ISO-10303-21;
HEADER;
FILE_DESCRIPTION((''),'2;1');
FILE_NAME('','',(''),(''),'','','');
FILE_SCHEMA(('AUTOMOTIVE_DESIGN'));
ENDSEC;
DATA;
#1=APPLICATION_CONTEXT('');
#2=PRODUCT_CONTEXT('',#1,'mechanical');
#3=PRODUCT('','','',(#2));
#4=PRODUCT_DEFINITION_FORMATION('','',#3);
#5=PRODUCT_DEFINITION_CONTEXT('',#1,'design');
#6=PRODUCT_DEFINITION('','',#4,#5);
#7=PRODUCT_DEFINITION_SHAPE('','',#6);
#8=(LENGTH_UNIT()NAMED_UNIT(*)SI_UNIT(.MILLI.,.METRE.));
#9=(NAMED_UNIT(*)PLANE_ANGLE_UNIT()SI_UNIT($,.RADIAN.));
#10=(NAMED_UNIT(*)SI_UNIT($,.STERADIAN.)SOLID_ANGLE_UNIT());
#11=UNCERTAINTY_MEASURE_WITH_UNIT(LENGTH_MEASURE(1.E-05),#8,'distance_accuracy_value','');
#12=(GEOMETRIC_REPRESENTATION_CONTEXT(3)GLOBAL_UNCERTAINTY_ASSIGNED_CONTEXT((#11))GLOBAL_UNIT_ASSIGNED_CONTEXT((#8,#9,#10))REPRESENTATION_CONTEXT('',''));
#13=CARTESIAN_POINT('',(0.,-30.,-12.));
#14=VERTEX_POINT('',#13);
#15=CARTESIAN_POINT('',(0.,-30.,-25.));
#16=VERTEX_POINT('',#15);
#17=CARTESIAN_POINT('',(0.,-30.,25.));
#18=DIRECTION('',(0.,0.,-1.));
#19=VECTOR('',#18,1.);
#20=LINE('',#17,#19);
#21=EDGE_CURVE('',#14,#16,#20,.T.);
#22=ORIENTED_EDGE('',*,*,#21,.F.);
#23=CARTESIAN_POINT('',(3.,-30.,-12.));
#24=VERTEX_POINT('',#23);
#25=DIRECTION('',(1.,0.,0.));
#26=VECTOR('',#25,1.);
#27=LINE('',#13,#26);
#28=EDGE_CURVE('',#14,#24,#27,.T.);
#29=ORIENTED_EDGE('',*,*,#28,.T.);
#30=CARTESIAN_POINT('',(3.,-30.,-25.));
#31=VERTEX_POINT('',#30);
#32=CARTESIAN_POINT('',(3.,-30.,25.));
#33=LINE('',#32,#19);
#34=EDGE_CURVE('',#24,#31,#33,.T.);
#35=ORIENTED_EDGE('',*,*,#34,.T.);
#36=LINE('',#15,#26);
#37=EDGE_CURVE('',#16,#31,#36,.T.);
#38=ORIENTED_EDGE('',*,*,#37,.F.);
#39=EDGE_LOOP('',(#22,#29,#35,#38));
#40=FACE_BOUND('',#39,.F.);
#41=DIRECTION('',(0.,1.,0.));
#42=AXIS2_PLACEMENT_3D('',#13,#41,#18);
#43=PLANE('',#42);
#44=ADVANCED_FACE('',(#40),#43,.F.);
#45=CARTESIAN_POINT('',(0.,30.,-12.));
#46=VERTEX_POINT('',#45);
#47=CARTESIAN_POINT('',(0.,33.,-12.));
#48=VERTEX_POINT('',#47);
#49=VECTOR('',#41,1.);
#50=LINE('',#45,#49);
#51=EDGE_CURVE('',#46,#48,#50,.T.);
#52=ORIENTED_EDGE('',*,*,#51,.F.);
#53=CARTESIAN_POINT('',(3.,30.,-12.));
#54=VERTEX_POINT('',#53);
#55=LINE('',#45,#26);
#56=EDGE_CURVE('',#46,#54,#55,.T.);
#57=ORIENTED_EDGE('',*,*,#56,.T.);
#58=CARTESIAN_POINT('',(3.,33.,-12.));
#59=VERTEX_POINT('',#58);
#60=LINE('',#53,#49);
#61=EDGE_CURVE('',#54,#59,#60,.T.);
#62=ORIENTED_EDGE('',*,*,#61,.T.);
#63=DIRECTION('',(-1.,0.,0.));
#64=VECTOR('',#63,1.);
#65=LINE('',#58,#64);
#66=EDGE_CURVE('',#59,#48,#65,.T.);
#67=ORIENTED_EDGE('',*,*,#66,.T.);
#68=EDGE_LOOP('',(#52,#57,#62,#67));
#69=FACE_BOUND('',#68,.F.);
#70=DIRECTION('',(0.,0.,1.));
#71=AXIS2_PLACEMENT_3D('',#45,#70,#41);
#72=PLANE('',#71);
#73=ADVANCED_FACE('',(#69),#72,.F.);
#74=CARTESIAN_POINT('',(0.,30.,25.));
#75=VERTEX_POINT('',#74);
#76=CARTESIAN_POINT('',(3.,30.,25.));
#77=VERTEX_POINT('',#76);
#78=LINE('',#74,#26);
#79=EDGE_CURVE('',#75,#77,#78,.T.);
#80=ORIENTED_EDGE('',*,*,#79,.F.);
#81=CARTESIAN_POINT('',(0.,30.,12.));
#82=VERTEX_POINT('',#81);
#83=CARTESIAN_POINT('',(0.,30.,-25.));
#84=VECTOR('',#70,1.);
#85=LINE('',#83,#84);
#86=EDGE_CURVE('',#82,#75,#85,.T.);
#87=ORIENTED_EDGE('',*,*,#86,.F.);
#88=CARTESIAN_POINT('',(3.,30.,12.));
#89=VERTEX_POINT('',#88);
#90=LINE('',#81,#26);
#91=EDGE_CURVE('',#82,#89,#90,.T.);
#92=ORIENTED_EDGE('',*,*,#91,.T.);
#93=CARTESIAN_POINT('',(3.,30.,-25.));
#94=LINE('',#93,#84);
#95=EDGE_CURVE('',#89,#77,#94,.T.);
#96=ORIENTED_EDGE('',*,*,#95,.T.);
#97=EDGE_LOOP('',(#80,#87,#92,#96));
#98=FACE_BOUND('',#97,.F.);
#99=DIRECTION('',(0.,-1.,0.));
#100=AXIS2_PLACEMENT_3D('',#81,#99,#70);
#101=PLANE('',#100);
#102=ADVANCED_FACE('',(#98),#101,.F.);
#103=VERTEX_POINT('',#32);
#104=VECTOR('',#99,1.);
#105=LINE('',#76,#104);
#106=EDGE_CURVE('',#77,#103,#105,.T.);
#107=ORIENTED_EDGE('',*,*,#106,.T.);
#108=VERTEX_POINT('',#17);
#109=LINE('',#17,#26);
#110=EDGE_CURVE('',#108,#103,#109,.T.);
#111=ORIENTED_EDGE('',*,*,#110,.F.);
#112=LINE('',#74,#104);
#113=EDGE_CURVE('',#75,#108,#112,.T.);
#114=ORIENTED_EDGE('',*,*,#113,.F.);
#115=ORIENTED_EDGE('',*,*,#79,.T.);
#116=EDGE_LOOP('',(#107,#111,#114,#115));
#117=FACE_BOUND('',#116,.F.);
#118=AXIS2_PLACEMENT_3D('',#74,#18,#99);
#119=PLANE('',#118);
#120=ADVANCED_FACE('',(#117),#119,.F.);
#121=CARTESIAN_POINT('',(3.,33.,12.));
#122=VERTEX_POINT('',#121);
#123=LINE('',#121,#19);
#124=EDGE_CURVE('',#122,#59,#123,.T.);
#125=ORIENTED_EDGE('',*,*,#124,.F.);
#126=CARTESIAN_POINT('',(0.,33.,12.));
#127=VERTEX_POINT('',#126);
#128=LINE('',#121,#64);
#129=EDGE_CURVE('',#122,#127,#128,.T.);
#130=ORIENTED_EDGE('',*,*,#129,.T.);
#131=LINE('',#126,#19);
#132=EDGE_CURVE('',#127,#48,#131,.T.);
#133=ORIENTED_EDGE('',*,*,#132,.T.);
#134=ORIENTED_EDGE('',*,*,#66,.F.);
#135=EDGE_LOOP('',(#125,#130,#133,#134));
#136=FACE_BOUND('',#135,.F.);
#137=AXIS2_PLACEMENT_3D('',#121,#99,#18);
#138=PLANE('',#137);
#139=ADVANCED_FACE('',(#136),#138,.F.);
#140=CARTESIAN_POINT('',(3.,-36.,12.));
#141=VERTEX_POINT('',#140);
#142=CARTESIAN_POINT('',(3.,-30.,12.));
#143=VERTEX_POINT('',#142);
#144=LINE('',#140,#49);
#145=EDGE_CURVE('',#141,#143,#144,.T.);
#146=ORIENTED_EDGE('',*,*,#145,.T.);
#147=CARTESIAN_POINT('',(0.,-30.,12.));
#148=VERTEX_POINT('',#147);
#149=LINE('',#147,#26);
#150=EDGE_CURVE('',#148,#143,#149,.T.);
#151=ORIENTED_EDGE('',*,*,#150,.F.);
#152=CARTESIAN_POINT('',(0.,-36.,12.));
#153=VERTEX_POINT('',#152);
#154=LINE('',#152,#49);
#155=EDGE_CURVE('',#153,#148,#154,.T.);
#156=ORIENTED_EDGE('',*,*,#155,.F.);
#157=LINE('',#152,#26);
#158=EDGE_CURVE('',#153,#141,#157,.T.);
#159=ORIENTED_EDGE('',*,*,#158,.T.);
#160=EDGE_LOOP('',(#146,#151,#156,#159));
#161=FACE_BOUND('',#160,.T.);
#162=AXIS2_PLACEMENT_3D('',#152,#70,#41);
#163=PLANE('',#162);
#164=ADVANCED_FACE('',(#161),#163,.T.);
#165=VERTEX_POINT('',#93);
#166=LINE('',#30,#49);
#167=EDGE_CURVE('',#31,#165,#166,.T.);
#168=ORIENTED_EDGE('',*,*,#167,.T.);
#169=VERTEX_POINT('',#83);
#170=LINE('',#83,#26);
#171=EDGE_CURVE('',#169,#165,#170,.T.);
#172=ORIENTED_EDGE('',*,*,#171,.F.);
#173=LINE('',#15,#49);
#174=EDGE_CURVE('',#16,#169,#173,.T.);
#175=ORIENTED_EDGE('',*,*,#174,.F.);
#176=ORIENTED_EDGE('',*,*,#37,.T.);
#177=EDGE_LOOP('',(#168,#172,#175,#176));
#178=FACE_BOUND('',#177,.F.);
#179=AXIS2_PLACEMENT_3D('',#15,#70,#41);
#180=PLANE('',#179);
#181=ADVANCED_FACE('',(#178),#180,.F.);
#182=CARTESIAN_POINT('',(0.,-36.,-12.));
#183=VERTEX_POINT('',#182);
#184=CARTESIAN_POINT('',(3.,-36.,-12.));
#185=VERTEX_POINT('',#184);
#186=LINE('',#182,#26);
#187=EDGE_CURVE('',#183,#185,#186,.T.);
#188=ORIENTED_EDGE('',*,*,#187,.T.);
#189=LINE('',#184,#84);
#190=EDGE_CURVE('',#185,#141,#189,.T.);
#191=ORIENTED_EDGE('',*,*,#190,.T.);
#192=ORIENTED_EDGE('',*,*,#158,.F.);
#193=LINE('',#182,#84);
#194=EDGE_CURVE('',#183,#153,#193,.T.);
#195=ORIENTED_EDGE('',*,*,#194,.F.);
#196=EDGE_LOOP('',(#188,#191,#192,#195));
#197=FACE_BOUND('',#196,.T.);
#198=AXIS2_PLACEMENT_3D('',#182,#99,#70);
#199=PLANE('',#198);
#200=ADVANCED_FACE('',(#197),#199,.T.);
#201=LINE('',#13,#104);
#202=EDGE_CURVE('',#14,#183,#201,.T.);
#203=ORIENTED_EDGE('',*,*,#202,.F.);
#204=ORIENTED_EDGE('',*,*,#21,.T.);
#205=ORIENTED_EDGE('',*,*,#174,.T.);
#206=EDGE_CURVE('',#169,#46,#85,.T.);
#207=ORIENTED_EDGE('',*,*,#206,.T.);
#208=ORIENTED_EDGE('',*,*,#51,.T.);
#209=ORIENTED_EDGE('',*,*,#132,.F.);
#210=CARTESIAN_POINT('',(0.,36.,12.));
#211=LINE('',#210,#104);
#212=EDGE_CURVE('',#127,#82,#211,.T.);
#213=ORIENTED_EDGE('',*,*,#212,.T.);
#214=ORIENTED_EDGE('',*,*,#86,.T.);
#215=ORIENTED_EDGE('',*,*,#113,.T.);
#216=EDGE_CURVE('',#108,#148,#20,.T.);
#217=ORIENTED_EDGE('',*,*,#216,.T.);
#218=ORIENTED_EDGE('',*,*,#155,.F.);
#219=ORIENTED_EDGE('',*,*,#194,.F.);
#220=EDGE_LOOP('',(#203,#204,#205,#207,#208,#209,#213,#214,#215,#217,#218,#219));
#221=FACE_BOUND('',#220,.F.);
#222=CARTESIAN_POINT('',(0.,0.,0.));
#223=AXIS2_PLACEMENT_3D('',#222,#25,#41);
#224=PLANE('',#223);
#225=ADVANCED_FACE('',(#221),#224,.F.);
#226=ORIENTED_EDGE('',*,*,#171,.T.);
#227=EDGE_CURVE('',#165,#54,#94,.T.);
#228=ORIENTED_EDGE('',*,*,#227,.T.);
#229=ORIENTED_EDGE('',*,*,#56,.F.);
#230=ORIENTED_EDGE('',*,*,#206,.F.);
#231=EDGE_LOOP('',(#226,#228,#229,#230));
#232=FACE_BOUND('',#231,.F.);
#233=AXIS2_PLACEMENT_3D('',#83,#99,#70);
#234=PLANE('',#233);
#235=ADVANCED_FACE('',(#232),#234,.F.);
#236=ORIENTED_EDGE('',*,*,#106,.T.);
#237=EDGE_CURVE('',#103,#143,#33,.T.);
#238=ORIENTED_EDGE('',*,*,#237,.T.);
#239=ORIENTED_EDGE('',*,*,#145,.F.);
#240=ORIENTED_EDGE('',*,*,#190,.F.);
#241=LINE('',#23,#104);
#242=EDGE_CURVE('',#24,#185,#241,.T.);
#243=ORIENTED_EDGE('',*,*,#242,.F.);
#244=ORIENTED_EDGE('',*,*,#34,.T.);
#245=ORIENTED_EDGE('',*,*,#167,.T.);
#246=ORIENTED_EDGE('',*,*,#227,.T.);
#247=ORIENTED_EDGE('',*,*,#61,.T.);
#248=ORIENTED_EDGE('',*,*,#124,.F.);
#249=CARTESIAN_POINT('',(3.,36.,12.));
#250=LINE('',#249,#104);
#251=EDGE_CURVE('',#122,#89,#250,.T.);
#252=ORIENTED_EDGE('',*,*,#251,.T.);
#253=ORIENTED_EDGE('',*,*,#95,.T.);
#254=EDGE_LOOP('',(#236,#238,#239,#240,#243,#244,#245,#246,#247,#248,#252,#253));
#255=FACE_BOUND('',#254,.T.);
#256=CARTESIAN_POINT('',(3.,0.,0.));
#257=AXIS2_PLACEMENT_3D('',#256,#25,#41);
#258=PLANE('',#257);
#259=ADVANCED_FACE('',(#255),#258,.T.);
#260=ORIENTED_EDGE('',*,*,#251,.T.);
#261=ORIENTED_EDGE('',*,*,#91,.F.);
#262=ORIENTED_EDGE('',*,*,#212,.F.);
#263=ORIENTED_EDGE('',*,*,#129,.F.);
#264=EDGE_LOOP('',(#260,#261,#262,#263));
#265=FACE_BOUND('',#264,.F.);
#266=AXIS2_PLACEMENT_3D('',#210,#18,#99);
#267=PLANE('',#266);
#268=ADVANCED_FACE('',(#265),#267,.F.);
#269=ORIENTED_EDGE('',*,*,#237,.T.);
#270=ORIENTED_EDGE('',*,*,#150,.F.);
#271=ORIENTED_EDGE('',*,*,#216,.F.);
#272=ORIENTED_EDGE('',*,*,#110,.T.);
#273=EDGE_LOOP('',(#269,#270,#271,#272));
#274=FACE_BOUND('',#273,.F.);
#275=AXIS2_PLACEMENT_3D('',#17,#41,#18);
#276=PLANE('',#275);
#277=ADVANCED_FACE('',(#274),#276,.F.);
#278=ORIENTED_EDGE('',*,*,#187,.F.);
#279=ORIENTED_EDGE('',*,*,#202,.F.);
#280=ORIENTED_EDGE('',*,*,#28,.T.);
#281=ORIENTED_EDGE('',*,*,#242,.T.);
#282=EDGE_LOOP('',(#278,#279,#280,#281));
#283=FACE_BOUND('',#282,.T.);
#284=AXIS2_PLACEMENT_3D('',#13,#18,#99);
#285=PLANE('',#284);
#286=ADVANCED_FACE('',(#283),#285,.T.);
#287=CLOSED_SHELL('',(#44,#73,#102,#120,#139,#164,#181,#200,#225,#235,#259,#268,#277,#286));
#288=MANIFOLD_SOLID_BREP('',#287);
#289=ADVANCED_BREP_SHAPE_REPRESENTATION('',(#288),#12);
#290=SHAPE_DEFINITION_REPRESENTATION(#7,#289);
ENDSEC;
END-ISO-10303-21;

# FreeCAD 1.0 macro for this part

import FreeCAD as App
import Part
import Sketcher

V = App.Vector
Q = App.Units.Quantity


def add_polygon(sketch, points):
    """Adds a closed chain of lines whose ends are joined by coincident constraints."""
    first, n = sketch.GeometryCount, len(points)
    for a, b in zip(points, points[1:] + points[:1]):
        sketch.addGeometry(Part.LineSegment(App.Vector(*a, 0), App.Vector(*b, 0)), False)
    for i in range(n):
        sketch.addConstraint(Sketcher.Constraint("Coincident", first + i, 2, first + (i + 1) % n, 1))

doc = App.newDocument("Part")
body = doc.addObject("PartDesign::Body", "Body")

sketch1 = doc.addObject("Sketcher::SketchObject", "Sketch")
body.addObject(sketch1)
sketch1.AttachmentSupport = (doc.YZ_Plane, [""])
sketch1.MapMode = "FlatFace"
add_polygon(sketch1, [(30, 12), (30, 25), (-30, 25), (-30, 12), (-36, 12), (-36, -12), (-30, -12), (-30, -25), (30, -25), (30, -12), (36, -12), (36, 12)])
sketch1.addConstraint([
    Sketcher.Constraint("Vertical", 0),
    Sketcher.Constraint("Horizontal", 1),
    Sketcher.Constraint("Vertical", 2),
    Sketcher.Constraint("Horizontal", 3),
    Sketcher.Constraint("Vertical", 4),
    Sketcher.Constraint("Horizontal", 5),
    Sketcher.Constraint("Vertical", 6),
    Sketcher.Constraint("Horizontal", 7),
    Sketcher.Constraint("Vertical", 8),
    Sketcher.Constraint("Horizontal", 9),
    Sketcher.Constraint("Vertical", 10),
    Sketcher.Constraint("Horizontal", 11),
    Sketcher.Constraint("Symmetric", 0, 2, 6, 2, -1, 1),
    Sketcher.Constraint("Symmetric", 2, 2, 8, 2, -1, 1),
    Sketcher.Constraint("Symmetric", 4, 2, 10, 2, -1, 1),
    Sketcher.Constraint("Symmetric", 5, 2, 8, 2, -2),
    Sketcher.Constraint("DistanceX", 1, 2, 1, 1, Q("60 mm")),
    Sketcher.Constraint("DistanceX", 3, 2, 3, 1, Q("6 mm")),
    Sketcher.Constraint("DistanceY", 0, 1, 0, 2, Q("13 mm")),
    Sketcher.Constraint("DistanceY", 4, 2, 4, 1, Q("24 mm")),
])
pad1 = doc.addObject("PartDesign::Pad", "Pad")
body.addObject(pad1)
pad1.Profile = sketch1
pad1.Length = 3

sketch2 = doc.addObject("Sketcher::SketchObject", "Sketch001")
body.addObject(sketch2)
sketch2.AttachmentSupport = (doc.YZ_Plane, [""])
sketch2.MapMode = "FlatFace"
sketch2.AttachmentOffset = App.Placement(V(0, 0, 3), App.Rotation())
add_polygon(sketch2, [(33, -12), (36, -12), (36, 12), (33, 12)])
sketch2.addConstraint([
    Sketcher.Constraint("Horizontal", 0),
    Sketcher.Constraint("Vertical", 1),
    Sketcher.Constraint("Horizontal", 2),
    Sketcher.Constraint("Vertical", 3),
    Sketcher.Constraint("DistanceX", 0, 1, 0, 2, Q("3 mm")),
    Sketcher.Constraint("DistanceY", 1, 1, 1, 2, Q("24 mm")),
    Sketcher.Constraint("DistanceX", -1, 1, 0, 2, Q("36 mm")),
    Sketcher.Constraint("DistanceY", 0, 2, -1, 1, Q("12 mm")),
])
pocket1 = doc.addObject("PartDesign::Pocket", "Pocket")
body.addObject(pocket1)
pocket1.Profile = sketch2
pocket1.Length = 3

doc.recompute()
